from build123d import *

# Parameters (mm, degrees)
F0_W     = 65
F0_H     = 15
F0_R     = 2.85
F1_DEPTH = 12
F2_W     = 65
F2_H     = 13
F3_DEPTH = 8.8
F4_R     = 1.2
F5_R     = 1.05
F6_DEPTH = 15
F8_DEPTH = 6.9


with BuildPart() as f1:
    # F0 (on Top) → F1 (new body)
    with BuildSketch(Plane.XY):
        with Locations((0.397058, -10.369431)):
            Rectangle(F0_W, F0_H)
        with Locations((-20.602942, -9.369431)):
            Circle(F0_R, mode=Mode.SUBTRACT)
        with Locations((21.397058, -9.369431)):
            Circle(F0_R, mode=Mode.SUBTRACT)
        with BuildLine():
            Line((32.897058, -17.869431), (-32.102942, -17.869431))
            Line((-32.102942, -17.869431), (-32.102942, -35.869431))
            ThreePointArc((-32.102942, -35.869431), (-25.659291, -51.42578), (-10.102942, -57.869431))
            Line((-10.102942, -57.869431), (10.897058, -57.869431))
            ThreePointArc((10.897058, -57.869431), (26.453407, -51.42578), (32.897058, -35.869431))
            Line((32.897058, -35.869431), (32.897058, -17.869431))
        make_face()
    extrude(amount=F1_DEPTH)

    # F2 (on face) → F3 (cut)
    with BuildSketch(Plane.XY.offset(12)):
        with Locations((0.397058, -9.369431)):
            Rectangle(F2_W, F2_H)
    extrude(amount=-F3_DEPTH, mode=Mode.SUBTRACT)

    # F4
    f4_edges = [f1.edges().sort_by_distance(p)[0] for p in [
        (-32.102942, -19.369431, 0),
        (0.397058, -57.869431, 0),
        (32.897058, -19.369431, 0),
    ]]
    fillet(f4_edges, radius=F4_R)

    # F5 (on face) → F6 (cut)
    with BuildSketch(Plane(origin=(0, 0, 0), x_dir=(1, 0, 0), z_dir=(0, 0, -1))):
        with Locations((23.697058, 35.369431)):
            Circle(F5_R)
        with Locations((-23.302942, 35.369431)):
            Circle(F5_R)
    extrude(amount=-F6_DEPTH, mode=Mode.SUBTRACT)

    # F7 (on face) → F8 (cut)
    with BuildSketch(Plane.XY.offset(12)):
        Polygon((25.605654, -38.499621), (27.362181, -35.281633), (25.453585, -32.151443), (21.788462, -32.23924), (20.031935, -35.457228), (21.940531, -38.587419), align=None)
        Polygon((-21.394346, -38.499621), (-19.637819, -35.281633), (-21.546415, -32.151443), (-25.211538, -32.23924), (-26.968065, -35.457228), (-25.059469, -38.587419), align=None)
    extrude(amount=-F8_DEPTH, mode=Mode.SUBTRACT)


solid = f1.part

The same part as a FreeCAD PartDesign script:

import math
import FreeCAD as App
import Part
import Sketcher

V = App.Vector
Q = App.Units.Quantity


def edges_at(feature, points):
    """Names of the edges that pass closest to the given points."""
    edges = feature.Shape.Edges
    near = lambda p: min(range(len(edges)), key=lambda i: edges[i].distToShape(Part.Vertex(*p))[0])
    return sorted({f"Edge{near(p) + 1}" for p in points})


def add_polygon(sketch, points):
    """Adds a closed chain of lines whose ends are joined by coincident constraints."""
    first, n = sketch.GeometryCount, len(points)
    for a, b in zip(points, points[1:] + points[:1]):
        sketch.addGeometry(Part.LineSegment(App.Vector(*a, 0), App.Vector(*b, 0)), False)
    for i in range(n):
        sketch.addConstraint(Sketcher.Constraint("Coincident", first + i, 2, first + (i + 1) % n, 1))

doc = App.newDocument("Part")
body = doc.addObject("PartDesign::Body", "Body")

# Sketch on XY plane
sketch1 = body.newObject("Sketcher::SketchObject", "Sketch")
sketch1.AttachmentSupport = (doc.getObject("XY_Plane"), [""])
sketch1.MapMode = "FlatFace"
sketch1.addGeometry(Part.LineSegment(V(-32.1, -2.9, 0), V(-32.1, -35.9, 0)), False)
sketch1.addGeometry(Part.ArcOfCircle(Part.Circle(V(-10.1, -35.9, 0), V(0, 0, 1), 22), math.radians(-180), math.radians(-90)), False)
sketch1.addGeometry(Part.LineSegment(V(-10.1, -57.9, 0), V(10.9, -57.9, 0)), False)
sketch1.addGeometry(Part.ArcOfCircle(Part.Circle(V(10.9, -35.9, 0), V(0, 0, 1), 22), math.radians(-90), math.radians(0)), False)
sketch1.addGeometry(Part.LineSegment(V(32.9, -35.9, 0), V(32.9, -2.9, 0)), False)
sketch1.addGeometry(Part.LineSegment(V(32.9, -2.9, 0), V(-32.1, -2.9, 0)), False)
sketch1.addGeometry(Part.Circle(V(-20.6, -9.4, 0), V(0, 0, 1), 2.9), False)
sketch1.addGeometry(Part.Circle(V(21.4, -9.4, 0), V(0, 0, 1), 2.9), False)
sketch1.addConstraint(Sketcher.Constraint("Tangent", 0, 2, 1, 1))
sketch1.addConstraint(Sketcher.Constraint("Tangent", 1, 2, 2, 1))
sketch1.addConstraint(Sketcher.Constraint("Tangent", 2, 2, 3, 1))
sketch1.addConstraint(Sketcher.Constraint("Tangent", 3, 2, 4, 1))
sketch1.addConstraint(Sketcher.Constraint("Coincident", 4, 2, 5, 1))
sketch1.addConstraint(Sketcher.Constraint("Coincident", 5, 2, 0, 1))
sketch1.addConstraint(Sketcher.Constraint("Vertical", 0))
sketch1.addConstraint(Sketcher.Constraint("Horizontal", 2))
sketch1.addConstraint(Sketcher.Constraint("Vertical", 4))
sketch1.addConstraint(Sketcher.Constraint("Horizontal", 5))
sketch1.addConstraint(Sketcher.Constraint("Equal", 1, 3))
sketch1.addConstraint(Sketcher.Constraint("Equal", 6, 7))
sketch1.addConstraint(Sketcher.Constraint("Horizontal", 6, 3, 7, 3))
sketch1.addConstraint(Sketcher.Constraint("Radius", 1, Q("22.000001 mm")))
sketch1.addConstraint(Sketcher.Constraint("Diameter", 6, Q("5.7 mm")))
sketch1.addConstraint(Sketcher.Constraint("DistanceX", 2, 1, 2, 2, Q("21 mm")))
sketch1.addConstraint(Sketcher.Constraint("DistanceY", 0, 2, 0, 1, Q("33 mm")))
sketch1.addConstraint(Sketcher.Constraint("DistanceX", 6, 3, 7, 3, Q("42 mm")))
sketch1.addConstraint(Sketcher.Constraint("DistanceX", 6, 3, 1, 3, Q("10.500001 mm")))
sketch1.addConstraint(Sketcher.Constraint("DistanceY", 1, 3, 6, 3, Q("26.499999 mm")))
sketch1.addConstraint(Sketcher.Constraint("DistanceX", 1, 3, -1, 1, Q("10.102941 mm")))
sketch1.addConstraint(Sketcher.Constraint("DistanceY", 1, 3, -1, 1, Q("35.86943 mm")))
pad1 = body.newObject("PartDesign::Pad", "Pad")
pad1.Profile = sketch1
pad1.Length = 12

# Sketch on XY plane
sketch2 = body.newObject("Sketcher::SketchObject", "Sketch001")
sketch2.AttachmentSupport = (doc.getObject("XY_Plane"), [""])
sketch2.MapMode = "FlatFace"
sketch2.AttachmentOffset = App.Placement(V(0, 0, 12), App.Rotation())
add_polygon(sketch2, [(-32, -3), (-32, -16), (33, -16), (33, -3)])  # lines 0-3
sketch2.addConstraint(Sketcher.Constraint("Vertical", 0))
sketch2.addConstraint(Sketcher.Constraint("Horizontal", 1))
sketch2.addConstraint(Sketcher.Constraint("Vertical", 2))
sketch2.addConstraint(Sketcher.Constraint("Horizontal", 3))
sketch2.addConstraint(Sketcher.Constraint("DistanceX", 1, 1, 1, 2, Q("65 mm")))
sketch2.addConstraint(Sketcher.Constraint("DistanceY", 0, 2, 0, 1, Q("13 mm")))
sketch2.addConstraint(Sketcher.Constraint("DistanceY", 0, 2, -1, 1, Q("15.869431 mm")))
sketch2.addConstraint(Sketcher.Constraint("DistanceX", 0, 2, -1, 1, Q("32.102942 mm")))
pocket1 = body.newObject("PartDesign::Pocket", "Pocket")
pocket1.Profile = sketch2
pocket1.Length = 8.8
doc.recompute()

fillet = body.newObject("PartDesign::Fillet", "Fillet")
fillet.Base = (pocket1, edges_at(pocket1, [(-32.103, -19.369, 0), (0.397, -57.869, 0), (32.897, -19.369, 0)]))
fillet.Radius = 1.2

# Sketch on XY plane
sketch3 = body.newObject("Sketcher::SketchObject", "Sketch002")
sketch3.AttachmentSupport = (doc.getObject("XY_Plane"), [""])
sketch3.MapMode = "FlatFace"
sketch3.addGeometry(Part.Circle(V(23.7, -35.4, 0), V(0, 0, 1), 1.1), False)
sketch3.addGeometry(Part.Circle(V(-23.3, -35.4, 0), V(0, 0, 1), 1.1), False)
sketch3.addConstraint(Sketcher.Constraint("Equal", 0, 1))
sketch3.addConstraint(Sketcher.Constraint("Horizontal", 0, 3, 1, 3))
sketch3.addConstraint(Sketcher.Constraint("Diameter", 0, Q("2.1 mm")))
sketch3.addConstraint(Sketcher.Constraint("DistanceX", 1, 3, 0, 3, Q("47 mm")))
sketch3.addConstraint(Sketcher.Constraint("DistanceY", 0, 3, -1, 1, Q("35.369431 mm")))
sketch3.addConstraint(Sketcher.Constraint("DistanceX", -1, 1, 0, 3, Q("23.697058 mm")))
pocket2 = body.newObject("PartDesign::Pocket", "Pocket001")
pocket2.Profile = sketch3
pocket2.Length = 15
pocket2.Reversed = True

# Sketch on XY plane
sketch4 = body.newObject("Sketcher::SketchObject", "Sketch003")
sketch4.AttachmentSupport = (doc.getObject("XY_Plane"), [""])
sketch4.MapMode = "FlatFace"
sketch4.AttachmentOffset = App.Placement(V(0, 0, 12), App.Rotation())
add_polygon(sketch4, [(25.6, -38.5), (27.4, -35.3), (25.5, -32.2), (21.8, -32.2), (20, -35.5), (21.9, -38.6)])  # lines 0-5
add_polygon(sketch4, [(-21.4, -38.5), (-19.6, -35.3), (-21.5, -32.2), (-25.2, -32.2), (-27, -35.5), (-25.1, -38.6)])  # lines 6-11
sketch4.addConstraint(Sketcher.Constraint("Parallel", 0, 3))
sketch4.addConstraint(Sketcher.Constraint("Parallel", 1, 4))
sketch4.addConstraint(Sketcher.Constraint("Parallel", 2, 5))
sketch4.addConstraint(Sketcher.Constraint("Parallel", 3, 6))
sketch4.addConstraint(Sketcher.Constraint("Parallel", 4, 7))
sketch4.addConstraint(Sketcher.Constraint("Parallel", 5, 8))
sketch4.addConstraint(Sketcher.Constraint("Parallel", 6, 9))
sketch4.addConstraint(Sketcher.Constraint("Parallel", 7, 10))
sketch4.addConstraint(Sketcher.Constraint("Parallel", 8, 11))
sketch4.addConstraint(Sketcher.Constraint("Horizontal", 0, 2, 6, 2))
sketch4.addConstraint(Sketcher.Constraint("Horizontal", 1, 2, 7, 2))
sketch4.addConstraint(Sketcher.Constraint("Horizontal", 2, 2, 8, 2))
sketch4.addConstraint(Sketcher.Constraint("Horizontal", 3, 2, 9, 2))
sketch4.addConstraint(Sketcher.Constraint("Horizontal", 4, 2, 10, 2))
sketch4.addConstraint(Sketcher.Constraint("Equal", 0, 1))
sketch4.addConstraint(Sketcher.Constraint("Equal", 1, 2))
sketch4.addConstraint(Sketcher.Constraint("Equal", 2, 3))
sketch4.addConstraint(Sketcher.Constraint("DistanceX", 7, 2, 1, 2, Q("47 mm")))
sketch4.addConstraint(Sketcher.Constraint("DistanceX", -1, 1, 0, 2, Q("27.362181 mm")))
sketch4.addConstraint(Sketcher.Constraint("DistanceX", -1, 1, 2, 2, Q("21.788462 mm")))
sketch4.addConstraint(Sketcher.Constraint("DistanceY", 2, 2, -1, 1, Q("32.23924 mm")))
sketch4.addConstraint(Sketcher.Constraint("DistanceX", -1, 1, 4, 2, Q("21.940531 mm")))
sketch4.addConstraint(Sketcher.Constraint("DistanceY", 4, 2, -1, 1, Q("38.587419 mm")))
sketch4.addConstraint(Sketcher.Constraint("DistanceY", 5, 2, -1, 1, Q("38.499621 mm")))
pocket3 = body.newObject("PartDesign::Pocket", "Pocket002")
pocket3.Profile = sketch4
pocket3.Length = 6.9

doc.recompute()
